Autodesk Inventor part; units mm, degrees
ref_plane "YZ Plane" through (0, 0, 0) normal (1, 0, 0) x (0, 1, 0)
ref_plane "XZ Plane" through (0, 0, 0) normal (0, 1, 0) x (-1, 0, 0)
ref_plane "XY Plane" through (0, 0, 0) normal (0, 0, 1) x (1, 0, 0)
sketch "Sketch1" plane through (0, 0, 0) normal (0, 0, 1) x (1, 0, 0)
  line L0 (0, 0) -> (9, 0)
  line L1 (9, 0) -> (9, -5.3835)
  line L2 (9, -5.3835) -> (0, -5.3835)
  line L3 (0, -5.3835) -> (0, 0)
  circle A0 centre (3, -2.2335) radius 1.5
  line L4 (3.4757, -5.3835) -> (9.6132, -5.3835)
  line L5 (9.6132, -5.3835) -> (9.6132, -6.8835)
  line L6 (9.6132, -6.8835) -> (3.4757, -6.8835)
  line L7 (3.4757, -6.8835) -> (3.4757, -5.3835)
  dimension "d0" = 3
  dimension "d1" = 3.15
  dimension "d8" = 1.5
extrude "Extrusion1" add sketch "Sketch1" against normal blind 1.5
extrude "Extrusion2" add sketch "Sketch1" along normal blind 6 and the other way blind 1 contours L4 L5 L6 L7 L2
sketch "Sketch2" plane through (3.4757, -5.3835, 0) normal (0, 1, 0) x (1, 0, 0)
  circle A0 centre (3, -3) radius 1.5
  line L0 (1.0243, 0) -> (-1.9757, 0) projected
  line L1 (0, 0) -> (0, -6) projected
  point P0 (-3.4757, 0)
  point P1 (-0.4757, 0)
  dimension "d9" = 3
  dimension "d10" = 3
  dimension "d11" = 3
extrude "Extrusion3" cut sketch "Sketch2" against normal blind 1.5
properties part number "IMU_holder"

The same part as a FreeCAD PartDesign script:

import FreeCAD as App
import Part
import Sketcher


def add_polygon(sketch, points):
    """Adds a closed chain of lines whose ends are joined by coincident constraints."""
    first, n = sketch.GeometryCount, len(points)
    for a, b in zip(points, points[1:] + points[:1]):
        sketch.addGeometry(Part.LineSegment(App.Vector(*a, 0), App.Vector(*b, 0)), False)
    for i in range(n):
        sketch.addConstraint(Sketcher.Constraint("Coincident", first + i, 2, first + (i + 1) % n, 1))

doc = App.newDocument("Part")
body = doc.addObject("PartDesign::Body", "Body")

# Sketch on XY plane
sketch1 = body.newObject("Sketcher::SketchObject", "Sketch")
sketch1.AttachmentSupport = (doc.getObject("XY_Plane"), [""])
sketch1.MapMode = "FlatFace"
add_polygon(sketch1, [(9, 0), (0, 0), (0, -5.4), (3.5, -5.4), (3.5, -6.9), (9.6, -6.9), (9.6, -5.4), (9, -5.4)])  # lines 0-7
sketch1.addGeometry(Part.Circle(App.Vector(3, -2.2, 0), App.Vector(0, 0, 1), 1.5), False)  # 8
sketch1.addConstraint([
    Sketcher.Constraint("Horizontal", 0),
    Sketcher.Constraint("Vertical", 1),
    Sketcher.Constraint("Horizontal", 2),
    Sketcher.Constraint("Vertical", 3),
    Sketcher.Constraint("Horizontal", 4),
    Sketcher.Constraint("Vertical", 5),
    Sketcher.Constraint("Horizontal", 6),
    Sketcher.Constraint("Vertical", 7),
    Sketcher.Constraint("Coincident", 0, 2, -1, 1),
    Sketcher.Constraint("Horizontal", 2, 2, 5, 2),
    Sketcher.Constraint("Diameter", 8, 3.0),
    Sketcher.Constraint("DistanceY", 3, 2, 3, 1, 1.5),
    Sketcher.Constraint("DistanceX", -1, 1, 8, 3, 3.0),
    Sketcher.Constraint("DistanceX", 0, 2, 0, 1, 9.0),
    Sketcher.Constraint("DistanceY", 1, 2, 8, 3, 3.15),
    Sketcher.Constraint("DistanceX", 2, 1, 2, 2, 3.4757),
    Sketcher.Constraint("DistanceX", 4, 1, 4, 2, 6.1375),
    Sketcher.Constraint("DistanceY", 1, 2, 1, 1, 5.3835),
])
pad1 = body.newObject("PartDesign::Pad", "Pad")
pad1.Profile = sketch1
pad1.Length = 1.5
pad1.Reversed = True

# Sketch on XY plane
sketch2 = body.newObject("Sketcher::SketchObject", "Sketch001")
sketch2.AttachmentSupport = (doc.getObject("XY_Plane"), [""])
sketch2.MapMode = "FlatFace"
add_polygon(sketch2, [(9.6, -5.4), (3.5, -5.4), (3.5, -6.9), (9.6, -6.9)])  # lines 0-3
sketch2.addConstraint([
    Sketcher.Constraint("Horizontal", 0),
    Sketcher.Constraint("Vertical", 1),
    Sketcher.Constraint("Horizontal", 2),
    Sketcher.Constraint("Vertical", 3),
    Sketcher.Constraint("DistanceY", 1, 2, 1, 1, 1.5),
    Sketcher.Constraint("DistanceX", 0, 2, 0, 1, 6.1375),
    Sketcher.Constraint("DistanceX", -1, 1, 0, 2, 3.4757),
    Sketcher.Constraint("DistanceY", 0, 2, -1, 1, 5.3835),
])
pad2 = body.newObject("PartDesign::Pad", "Pad001")
pad2.Profile = sketch2
pad2.Type = "TwoLengths"
pad2.Length = 6
pad2.Length2 = 1

# Sketch on XZ plane
sketch3 = body.newObject("Sketcher::SketchObject", "Sketch002")
sketch3.AttachmentSupport = (doc.getObject("XZ_Plane"), [""])
sketch3.MapMode = "FlatFace"
sketch3.AttachmentOffset = App.Placement(App.Vector(0, 0, 5.3835), App.Rotation())
sketch3.addGeometry(Part.Circle(App.Vector(6.5, 3, 0), App.Vector(0, 0, 1), 1.5), False)
sketch3.addConstraint([
    Sketcher.Constraint("Diameter", 0, 3.0),
    Sketcher.Constraint("DistanceY", -1, 1, 0, 3, 3.0),
    Sketcher.Constraint("DistanceX", -1, 1, 0, 3, 6.4757),
])
pocket1 = body.newObject("PartDesign::Pocket", "Pocket")
pocket1.Profile = sketch3
pocket1.Length = 1.5
pocket1.Reversed = True

doc.recompute()
